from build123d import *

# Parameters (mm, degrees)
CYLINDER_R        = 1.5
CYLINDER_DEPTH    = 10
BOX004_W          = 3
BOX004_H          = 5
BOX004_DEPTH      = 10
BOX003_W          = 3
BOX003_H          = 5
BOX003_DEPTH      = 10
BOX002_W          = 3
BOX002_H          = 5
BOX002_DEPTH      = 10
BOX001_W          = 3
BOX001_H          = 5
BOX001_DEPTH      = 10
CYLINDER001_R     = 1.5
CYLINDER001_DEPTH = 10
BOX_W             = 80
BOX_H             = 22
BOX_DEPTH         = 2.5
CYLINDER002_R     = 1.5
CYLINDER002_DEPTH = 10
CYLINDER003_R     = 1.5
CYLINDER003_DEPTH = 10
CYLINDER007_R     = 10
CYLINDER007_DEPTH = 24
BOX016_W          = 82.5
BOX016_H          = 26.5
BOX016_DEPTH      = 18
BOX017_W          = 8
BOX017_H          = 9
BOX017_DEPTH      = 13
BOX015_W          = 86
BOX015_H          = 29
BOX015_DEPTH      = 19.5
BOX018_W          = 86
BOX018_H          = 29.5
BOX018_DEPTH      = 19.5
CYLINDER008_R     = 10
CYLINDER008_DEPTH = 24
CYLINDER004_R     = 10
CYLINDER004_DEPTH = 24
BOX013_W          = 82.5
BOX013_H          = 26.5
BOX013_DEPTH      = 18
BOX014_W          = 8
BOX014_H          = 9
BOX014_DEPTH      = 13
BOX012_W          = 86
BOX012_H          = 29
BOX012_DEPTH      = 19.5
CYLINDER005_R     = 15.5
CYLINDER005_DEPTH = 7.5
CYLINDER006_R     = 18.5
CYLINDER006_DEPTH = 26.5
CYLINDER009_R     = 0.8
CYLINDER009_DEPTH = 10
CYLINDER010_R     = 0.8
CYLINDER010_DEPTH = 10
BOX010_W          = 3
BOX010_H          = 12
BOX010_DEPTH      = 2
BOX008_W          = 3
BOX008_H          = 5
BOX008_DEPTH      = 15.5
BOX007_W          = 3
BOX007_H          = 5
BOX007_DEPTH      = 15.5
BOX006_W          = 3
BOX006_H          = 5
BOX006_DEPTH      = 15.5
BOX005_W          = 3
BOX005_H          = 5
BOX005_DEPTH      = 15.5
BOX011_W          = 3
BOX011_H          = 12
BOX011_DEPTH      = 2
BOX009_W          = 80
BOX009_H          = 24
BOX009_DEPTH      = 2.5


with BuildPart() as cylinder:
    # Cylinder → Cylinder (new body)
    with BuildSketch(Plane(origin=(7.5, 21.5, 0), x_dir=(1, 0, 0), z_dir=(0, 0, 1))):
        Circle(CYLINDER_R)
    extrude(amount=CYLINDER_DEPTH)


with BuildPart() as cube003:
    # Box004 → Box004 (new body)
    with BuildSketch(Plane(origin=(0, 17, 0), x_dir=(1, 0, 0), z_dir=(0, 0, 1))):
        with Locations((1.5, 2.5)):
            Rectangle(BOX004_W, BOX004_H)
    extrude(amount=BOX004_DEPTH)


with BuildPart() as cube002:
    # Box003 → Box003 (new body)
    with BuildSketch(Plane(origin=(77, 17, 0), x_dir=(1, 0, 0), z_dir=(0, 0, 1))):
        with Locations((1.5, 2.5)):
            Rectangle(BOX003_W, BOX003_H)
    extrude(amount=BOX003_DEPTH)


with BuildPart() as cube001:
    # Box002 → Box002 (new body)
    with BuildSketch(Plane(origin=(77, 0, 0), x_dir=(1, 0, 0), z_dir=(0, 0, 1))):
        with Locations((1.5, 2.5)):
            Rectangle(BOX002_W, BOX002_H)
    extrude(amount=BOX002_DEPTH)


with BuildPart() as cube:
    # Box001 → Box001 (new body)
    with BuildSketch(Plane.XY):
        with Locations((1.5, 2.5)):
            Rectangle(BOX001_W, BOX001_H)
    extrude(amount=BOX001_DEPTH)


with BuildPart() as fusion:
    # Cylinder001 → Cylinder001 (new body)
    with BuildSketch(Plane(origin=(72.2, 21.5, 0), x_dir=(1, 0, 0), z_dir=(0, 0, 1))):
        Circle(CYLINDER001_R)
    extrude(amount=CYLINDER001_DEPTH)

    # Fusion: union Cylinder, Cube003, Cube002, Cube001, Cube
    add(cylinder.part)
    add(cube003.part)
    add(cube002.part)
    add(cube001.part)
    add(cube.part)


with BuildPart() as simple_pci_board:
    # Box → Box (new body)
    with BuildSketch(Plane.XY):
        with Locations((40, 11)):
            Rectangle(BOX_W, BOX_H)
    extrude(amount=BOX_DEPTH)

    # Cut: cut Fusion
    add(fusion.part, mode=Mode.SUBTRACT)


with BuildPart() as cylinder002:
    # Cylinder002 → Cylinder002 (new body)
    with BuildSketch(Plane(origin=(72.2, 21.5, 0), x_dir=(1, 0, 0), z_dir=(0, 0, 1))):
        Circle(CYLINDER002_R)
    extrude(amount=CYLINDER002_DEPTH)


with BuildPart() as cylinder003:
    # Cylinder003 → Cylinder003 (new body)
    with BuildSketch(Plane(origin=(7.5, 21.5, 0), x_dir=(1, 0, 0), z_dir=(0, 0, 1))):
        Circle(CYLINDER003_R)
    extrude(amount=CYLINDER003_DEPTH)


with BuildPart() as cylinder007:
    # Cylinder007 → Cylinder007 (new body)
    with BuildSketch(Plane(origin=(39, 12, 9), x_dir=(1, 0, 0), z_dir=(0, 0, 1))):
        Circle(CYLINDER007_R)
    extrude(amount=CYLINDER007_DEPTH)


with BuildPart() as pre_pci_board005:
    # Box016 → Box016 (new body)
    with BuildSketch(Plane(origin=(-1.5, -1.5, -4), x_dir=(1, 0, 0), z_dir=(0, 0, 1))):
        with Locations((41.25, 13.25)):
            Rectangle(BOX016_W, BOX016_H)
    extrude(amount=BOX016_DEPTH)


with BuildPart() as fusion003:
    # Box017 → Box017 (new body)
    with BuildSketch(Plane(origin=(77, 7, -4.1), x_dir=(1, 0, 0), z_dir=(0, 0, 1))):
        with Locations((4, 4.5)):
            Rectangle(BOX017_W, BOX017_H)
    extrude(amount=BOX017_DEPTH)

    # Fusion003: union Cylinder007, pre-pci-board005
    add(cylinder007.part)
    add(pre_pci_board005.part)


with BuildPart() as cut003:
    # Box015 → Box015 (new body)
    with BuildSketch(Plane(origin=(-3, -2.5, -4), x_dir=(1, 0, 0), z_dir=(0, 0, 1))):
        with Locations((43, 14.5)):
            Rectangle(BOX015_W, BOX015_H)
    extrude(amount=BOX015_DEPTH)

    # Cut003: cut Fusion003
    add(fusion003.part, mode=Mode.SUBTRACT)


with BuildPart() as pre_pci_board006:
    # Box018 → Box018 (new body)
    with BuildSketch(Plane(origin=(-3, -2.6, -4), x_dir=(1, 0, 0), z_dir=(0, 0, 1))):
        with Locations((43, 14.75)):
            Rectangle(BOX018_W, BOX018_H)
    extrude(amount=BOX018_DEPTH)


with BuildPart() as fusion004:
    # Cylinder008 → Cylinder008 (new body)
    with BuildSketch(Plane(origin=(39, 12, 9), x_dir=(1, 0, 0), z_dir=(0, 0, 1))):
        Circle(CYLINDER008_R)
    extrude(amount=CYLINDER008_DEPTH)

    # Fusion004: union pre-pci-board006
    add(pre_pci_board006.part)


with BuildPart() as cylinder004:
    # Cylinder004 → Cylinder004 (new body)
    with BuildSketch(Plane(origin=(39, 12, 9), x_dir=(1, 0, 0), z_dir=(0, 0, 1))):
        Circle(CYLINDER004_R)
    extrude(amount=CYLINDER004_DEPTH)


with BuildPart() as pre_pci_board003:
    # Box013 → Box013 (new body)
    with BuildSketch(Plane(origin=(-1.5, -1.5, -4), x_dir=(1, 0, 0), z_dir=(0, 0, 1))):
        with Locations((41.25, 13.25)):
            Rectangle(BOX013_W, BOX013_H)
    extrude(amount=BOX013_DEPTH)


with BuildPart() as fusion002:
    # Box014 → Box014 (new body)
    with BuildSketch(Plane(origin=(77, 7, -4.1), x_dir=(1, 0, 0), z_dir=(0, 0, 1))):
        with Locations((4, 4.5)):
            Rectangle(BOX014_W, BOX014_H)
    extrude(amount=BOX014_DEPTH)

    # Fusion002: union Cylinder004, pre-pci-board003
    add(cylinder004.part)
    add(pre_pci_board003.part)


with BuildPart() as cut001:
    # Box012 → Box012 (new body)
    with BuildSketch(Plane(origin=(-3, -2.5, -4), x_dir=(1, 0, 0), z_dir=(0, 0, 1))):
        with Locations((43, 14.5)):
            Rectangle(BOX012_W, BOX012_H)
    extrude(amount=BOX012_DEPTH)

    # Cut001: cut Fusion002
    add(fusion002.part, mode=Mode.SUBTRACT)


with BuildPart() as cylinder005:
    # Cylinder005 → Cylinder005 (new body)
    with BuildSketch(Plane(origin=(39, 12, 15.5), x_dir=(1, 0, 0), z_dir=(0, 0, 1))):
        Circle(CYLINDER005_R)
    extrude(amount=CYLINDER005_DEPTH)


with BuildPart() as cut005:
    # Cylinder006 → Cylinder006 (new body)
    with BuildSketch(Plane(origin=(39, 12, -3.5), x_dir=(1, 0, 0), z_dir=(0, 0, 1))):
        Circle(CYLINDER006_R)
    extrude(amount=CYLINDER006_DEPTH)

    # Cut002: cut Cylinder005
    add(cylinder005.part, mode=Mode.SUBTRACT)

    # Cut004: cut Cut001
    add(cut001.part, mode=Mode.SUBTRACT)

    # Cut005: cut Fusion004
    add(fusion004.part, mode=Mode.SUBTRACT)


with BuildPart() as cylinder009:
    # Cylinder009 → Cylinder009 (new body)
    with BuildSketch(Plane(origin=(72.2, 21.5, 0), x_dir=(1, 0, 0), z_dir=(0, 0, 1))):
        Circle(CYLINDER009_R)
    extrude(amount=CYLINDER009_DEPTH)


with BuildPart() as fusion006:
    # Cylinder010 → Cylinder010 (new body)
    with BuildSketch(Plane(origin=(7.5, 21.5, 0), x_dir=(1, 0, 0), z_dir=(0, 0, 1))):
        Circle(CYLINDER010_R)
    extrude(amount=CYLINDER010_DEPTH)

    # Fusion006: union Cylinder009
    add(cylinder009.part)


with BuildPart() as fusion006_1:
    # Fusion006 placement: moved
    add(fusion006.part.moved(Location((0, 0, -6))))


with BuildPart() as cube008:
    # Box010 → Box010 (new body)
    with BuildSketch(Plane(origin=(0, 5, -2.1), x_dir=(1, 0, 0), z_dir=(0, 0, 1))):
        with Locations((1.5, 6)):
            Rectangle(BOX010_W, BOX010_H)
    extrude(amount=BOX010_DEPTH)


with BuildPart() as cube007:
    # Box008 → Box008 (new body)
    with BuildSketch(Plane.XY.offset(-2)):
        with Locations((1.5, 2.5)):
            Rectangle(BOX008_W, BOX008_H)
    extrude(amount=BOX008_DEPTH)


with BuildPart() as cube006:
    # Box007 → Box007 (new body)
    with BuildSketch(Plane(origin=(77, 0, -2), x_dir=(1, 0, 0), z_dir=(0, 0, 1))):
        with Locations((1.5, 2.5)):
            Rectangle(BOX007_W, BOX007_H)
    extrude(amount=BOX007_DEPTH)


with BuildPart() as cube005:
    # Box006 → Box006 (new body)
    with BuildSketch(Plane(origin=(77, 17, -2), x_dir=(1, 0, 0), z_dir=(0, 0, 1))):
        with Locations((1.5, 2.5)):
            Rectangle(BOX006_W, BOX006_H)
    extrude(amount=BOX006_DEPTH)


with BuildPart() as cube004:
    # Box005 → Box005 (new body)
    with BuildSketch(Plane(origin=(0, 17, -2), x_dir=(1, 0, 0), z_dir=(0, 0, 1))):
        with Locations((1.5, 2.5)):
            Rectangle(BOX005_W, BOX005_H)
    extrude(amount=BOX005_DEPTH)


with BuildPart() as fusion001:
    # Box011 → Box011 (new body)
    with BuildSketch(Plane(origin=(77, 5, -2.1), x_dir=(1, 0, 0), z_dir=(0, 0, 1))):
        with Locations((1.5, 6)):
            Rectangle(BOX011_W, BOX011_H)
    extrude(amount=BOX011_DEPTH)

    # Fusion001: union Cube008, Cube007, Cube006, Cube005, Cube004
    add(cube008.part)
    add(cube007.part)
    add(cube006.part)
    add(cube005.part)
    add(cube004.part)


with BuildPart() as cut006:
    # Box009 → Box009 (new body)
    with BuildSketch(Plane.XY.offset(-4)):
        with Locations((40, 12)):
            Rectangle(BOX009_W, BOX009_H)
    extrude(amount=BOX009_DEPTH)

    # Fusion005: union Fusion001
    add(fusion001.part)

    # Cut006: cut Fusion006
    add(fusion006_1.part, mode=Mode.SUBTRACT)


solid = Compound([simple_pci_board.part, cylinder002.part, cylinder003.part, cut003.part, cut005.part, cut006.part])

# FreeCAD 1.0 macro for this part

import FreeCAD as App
import Part
import Sketcher


def add_polygon(sketch, points):
    """Adds a closed chain of lines whose ends are joined by coincident constraints."""
    first, n = sketch.GeometryCount, len(points)
    for a, b in zip(points, points[1:] + points[:1]):
        sketch.addGeometry(Part.LineSegment(App.Vector(*a, 0), App.Vector(*b, 0)), False)
    for i in range(n):
        sketch.addConstraint(Sketcher.Constraint("Coincident", first + i, 2, first + (i + 1) % n, 1))

doc = App.newDocument("Part")
body = doc.addObject("PartDesign::Body", "Body")

# Sketch on XY plane
sketch1 = body.newObject("Sketcher::SketchObject", "Sketch")
sketch1.AttachmentSupport = (doc.getObject("XY_Plane"), [""])
sketch1.MapMode = "FlatFace"
sketch1.addGeometry(Part.Circle(App.Vector(7.5, 21.5, 0), App.Vector(0, 0, 1), 1.5), False)
sketch1.addConstraint([
    Sketcher.Constraint("Diameter", 0, 3.0),
    Sketcher.Constraint("DistanceX", -1, 1, 0, 3, 7.5),
    Sketcher.Constraint("DistanceY", -1, 1, 0, 3, 21.5),
])
pad1 = body.newObject("PartDesign::Pad", "Pad")
pad1.Profile = sketch1
pad1.Length = 10
body2 = doc.addObject("PartDesign::Body", "Body001")

# Sketch on XY plane
sketch2 = body2.newObject("Sketcher::SketchObject", "Sketch001")
sketch2.AttachmentSupport = (doc.getObject("XY_Plane001"), [""])
sketch2.MapMode = "FlatFace"
add_polygon(sketch2, [(0, 22), (0, 17), (3, 17), (3, 22)])  # lines 0-3
sketch2.addConstraint([
    Sketcher.Constraint("Vertical", 0),
    Sketcher.Constraint("Horizontal", 1),
    Sketcher.Constraint("Vertical", 2),
    Sketcher.Constraint("Horizontal", 3),
    Sketcher.Constraint("PointOnObject", 0, 2, -2),
    Sketcher.Constraint("DistanceX", 1, 1, 1, 2, 3.0),
    Sketcher.Constraint("DistanceY", 0, 2, 0, 1, 5.0),
    Sketcher.Constraint("DistanceY", -1, 1, 0, 2, 17.0),
])
pad2 = body2.newObject("PartDesign::Pad", "Pad001")
pad2.Profile = sketch2
pad2.Length = 10
body3 = doc.addObject("PartDesign::Body", "Body002")

# Sketch on XY plane
sketch3 = body3.newObject("Sketcher::SketchObject", "Sketch002")
sketch3.AttachmentSupport = (doc.getObject("XY_Plane002"), [""])
sketch3.MapMode = "FlatFace"
add_polygon(sketch3, [(77, 22), (77, 17), (80, 17), (80, 22)])  # lines 0-3
sketch3.addConstraint([
    Sketcher.Constraint("Vertical", 0),
    Sketcher.Constraint("Horizontal", 1),
    Sketcher.Constraint("Vertical", 2),
    Sketcher.Constraint("Horizontal", 3),
    Sketcher.Constraint("DistanceX", 1, 1, 1, 2, 3.0),
    Sketcher.Constraint("DistanceY", 0, 2, 0, 1, 5.0),
    Sketcher.Constraint("DistanceX", -1, 1, 0, 2, 77.0),
    Sketcher.Constraint("DistanceY", -1, 1, 0, 2, 17.0),
])
pad3 = body3.newObject("PartDesign::Pad", "Pad002")
pad3.Profile = sketch3
pad3.Length = 10
body4 = doc.addObject("PartDesign::Body", "Body003")

# Sketch on XY plane
sketch4 = body4.newObject("Sketcher::SketchObject", "Sketch003")
sketch4.AttachmentSupport = (doc.getObject("XY_Plane003"), [""])
sketch4.MapMode = "FlatFace"
add_polygon(sketch4, [(77, 5), (77, 0), (80, 0), (80, 5)])  # lines 0-3
sketch4.addConstraint([
    Sketcher.Constraint("Vertical", 0),
    Sketcher.Constraint("Horizontal", 1),
    Sketcher.Constraint("Vertical", 2),
    Sketcher.Constraint("Horizontal", 3),
    Sketcher.Constraint("PointOnObject", 0, 2, -1),
    Sketcher.Constraint("DistanceX", 1, 1, 1, 2, 3.0),
    Sketcher.Constraint("DistanceY", 0, 2, 0, 1, 5.0),
    Sketcher.Constraint("DistanceX", -1, 1, 0, 2, 77.0),
])
pad4 = body4.newObject("PartDesign::Pad", "Pad003")
pad4.Profile = sketch4
pad4.Length = 10
body5 = doc.addObject("PartDesign::Body", "Body004")

# Sketch on XY plane
sketch5 = body5.newObject("Sketcher::SketchObject", "Sketch004")
sketch5.AttachmentSupport = (doc.getObject("XY_Plane004"), [""])
sketch5.MapMode = "FlatFace"
add_polygon(sketch5, [(0, 5), (0, 0), (3, 0), (3, 5)])  # lines 0-3
sketch5.addConstraint([
    Sketcher.Constraint("Vertical", 0),
    Sketcher.Constraint("Horizontal", 1),
    Sketcher.Constraint("Vertical", 2),
    Sketcher.Constraint("Horizontal", 3),
    Sketcher.Constraint("Coincident", 0, 2, -1, 1),
    Sketcher.Constraint("DistanceX", 1, 1, 1, 2, 3.0),
    Sketcher.Constraint("DistanceY", 0, 2, 0, 1, 5.0),
])
pad5 = body5.newObject("PartDesign::Pad", "Pad004")
pad5.Profile = sketch5
pad5.Length = 10
body6 = doc.addObject("PartDesign::Body", "Body005")
body6.AllowCompound = True

# Sketch on XY plane
sketch6 = body6.newObject("Sketcher::SketchObject", "Sketch005")
sketch6.AttachmentSupport = (doc.getObject("XY_Plane005"), [""])
sketch6.MapMode = "FlatFace"
sketch6.addGeometry(Part.Circle(App.Vector(72.2, 21.5, 0), App.Vector(0, 0, 1), 1.5), False)
sketch6.addConstraint([
    Sketcher.Constraint("Diameter", 0, 3.0),
    Sketcher.Constraint("DistanceX", -1, 1, 0, 3, 72.2),
    Sketcher.Constraint("DistanceY", -1, 1, 0, 3, 21.5),
])
pad6 = body6.newObject("PartDesign::Pad", "Pad005")
pad6.Profile = sketch6
pad6.Length = 10
doc.recompute()

boolean = body6.newObject("PartDesign::Boolean", "Boolean")
boolean.Type = "Fuse"
boolean.addObjects([body])
doc.recompute()

boolean2 = body6.newObject("PartDesign::Boolean", "Boolean001")
boolean2.Type = "Fuse"
boolean2.addObjects([body2])
doc.recompute()

boolean3 = body6.newObject("PartDesign::Boolean", "Boolean002")
boolean3.Type = "Fuse"
boolean3.addObjects([body3])
doc.recompute()

boolean4 = body6.newObject("PartDesign::Boolean", "Boolean003")
boolean4.Type = "Fuse"
boolean4.addObjects([body4])
doc.recompute()

boolean5 = body6.newObject("PartDesign::Boolean", "Boolean004")
boolean5.Type = "Fuse"
boolean5.addObjects([body5])
body7 = doc.addObject("PartDesign::Body", "Body006")

# Sketch on XY plane
sketch7 = body7.newObject("Sketcher::SketchObject", "Sketch006")
sketch7.AttachmentSupport = (doc.getObject("XY_Plane006"), [""])
sketch7.MapMode = "FlatFace"
add_polygon(sketch7, [(0, 22), (0, 0), (80, 0), (80, 22)])  # lines 0-3
sketch7.addConstraint([
    Sketcher.Constraint("Vertical", 0),
    Sketcher.Constraint("Horizontal", 1),
    Sketcher.Constraint("Vertical", 2),
    Sketcher.Constraint("Horizontal", 3),
    Sketcher.Constraint("Coincident", 0, 2, -1, 1),
    Sketcher.Constraint("DistanceX", 1, 1, 1, 2, 80.0),
    Sketcher.Constraint("DistanceY", 0, 2, 0, 1, 22.0),
])
pad7 = body7.newObject("PartDesign::Pad", "Pad006")
pad7.Profile = sketch7
pad7.Length = 2.5
doc.recompute()

boolean6 = body7.newObject("PartDesign::Boolean", "Boolean005")
boolean6.Type = "Cut"
boolean6.addObjects([body6])
body8 = doc.addObject("PartDesign::Body", "Body007")

# Sketch on XY plane
sketch8 = body8.newObject("Sketcher::SketchObject", "Sketch007")
sketch8.AttachmentSupport = (doc.getObject("XY_Plane007"), [""])
sketch8.MapMode = "FlatFace"
sketch8.addGeometry(Part.Circle(App.Vector(72.2, 21.5, 0), App.Vector(0, 0, 1), 1.5), False)
sketch8.addConstraint([
    Sketcher.Constraint("Diameter", 0, 3.0),
    Sketcher.Constraint("DistanceX", -1, 1, 0, 3, 72.2),
    Sketcher.Constraint("DistanceY", -1, 1, 0, 3, 21.5),
])
pad8 = body8.newObject("PartDesign::Pad", "Pad007")
pad8.Profile = sketch8
pad8.Length = 10
body9 = doc.addObject("PartDesign::Body", "Body008")

# Sketch on XY plane
sketch9 = body9.newObject("Sketcher::SketchObject", "Sketch008")
sketch9.AttachmentSupport = (doc.getObject("XY_Plane008"), [""])
sketch9.MapMode = "FlatFace"
sketch9.addGeometry(Part.Circle(App.Vector(7.5, 21.5, 0), App.Vector(0, 0, 1), 1.5), False)
sketch9.addConstraint([
    Sketcher.Constraint("Diameter", 0, 3.0),
    Sketcher.Constraint("DistanceX", -1, 1, 0, 3, 7.5),
    Sketcher.Constraint("DistanceY", -1, 1, 0, 3, 21.5),
])
pad9 = body9.newObject("PartDesign::Pad", "Pad008")
pad9.Profile = sketch9
pad9.Length = 10
body10 = doc.addObject("PartDesign::Body", "Body009")

# Sketch on XY plane
sketch10 = body10.newObject("Sketcher::SketchObject", "Sketch009")
sketch10.AttachmentSupport = (doc.getObject("XY_Plane009"), [""])
sketch10.MapMode = "FlatFace"
sketch10.AttachmentOffset = App.Placement(App.Vector(0, 0, 9), App.Rotation())
sketch10.addGeometry(Part.Circle(App.Vector(39, 12, 0), App.Vector(0, 0, 1), 10), False)
sketch10.addConstraint([
    Sketcher.Constraint("Diameter", 0, 20.0),
    Sketcher.Constraint("DistanceX", -1, 1, 0, 3, 39.0),
    Sketcher.Constraint("DistanceY", -1, 1, 0, 3, 12.0),
])
pad10 = body10.newObject("PartDesign::Pad", "Pad009")
pad10.Profile = sketch10
pad10.Length = 24
body11 = doc.addObject("PartDesign::Body", "Body010")

# Sketch on XY plane
sketch11 = body11.newObject("Sketcher::SketchObject", "Sketch010")
sketch11.AttachmentSupport = (doc.getObject("XY_Plane010"), [""])
sketch11.MapMode = "FlatFace"
sketch11.AttachmentOffset = App.Placement(App.Vector(0, 0, -4), App.Rotation())
add_polygon(sketch11, [(-2, 25), (-2, -2), (81, -2), (81, 25)])  # lines 0-3
sketch11.addConstraint([
    Sketcher.Constraint("Vertical", 0),
    Sketcher.Constraint("Horizontal", 1),
    Sketcher.Constraint("Vertical", 2),
    Sketcher.Constraint("Horizontal", 3),
    Sketcher.Constraint("DistanceX", 1, 1, 1, 2, 82.5),
    Sketcher.Constraint("DistanceY", 0, 2, 0, 1, 26.5),
    Sketcher.Constraint("DistanceX", -1, 1, 1, 2, 81.0),
    Sketcher.Constraint("DistanceY", -1, 1, 2, 2, 25.0),
])
pad11 = body11.newObject("PartDesign::Pad", "Pad010")
pad11.Profile = sketch11
pad11.Length = 18
body12 = doc.addObject("PartDesign::Body", "Body011")
body12.AllowCompound = True

# Sketch on XY plane
sketch12 = body12.newObject("Sketcher::SketchObject", "Sketch011")
sketch12.AttachmentSupport = (doc.getObject("XY_Plane011"), [""])
sketch12.MapMode = "FlatFace"
sketch12.AttachmentOffset = App.Placement(App.Vector(0, 0, -4.1), App.Rotation())
add_polygon(sketch12, [(77, 16), (77, 7), (85, 7), (85, 16)])  # lines 0-3
sketch12.addConstraint([
    Sketcher.Constraint("Vertical", 0),
    Sketcher.Constraint("Horizontal", 1),
    Sketcher.Constraint("Vertical", 2),
    Sketcher.Constraint("Horizontal", 3),
    Sketcher.Constraint("DistanceX", 1, 1, 1, 2, 8.0),
    Sketcher.Constraint("DistanceY", 0, 2, 0, 1, 9.0),
    Sketcher.Constraint("DistanceX", -1, 1, 0, 2, 77.0),
    Sketcher.Constraint("DistanceY", -1, 1, 0, 2, 7.0),
])
pad12 = body12.newObject("PartDesign::Pad", "Pad011")
pad12.Profile = sketch12
pad12.Length = 13
doc.recompute()

boolean7 = body12.newObject("PartDesign::Boolean", "Boolean006")
boolean7.Type = "Fuse"
boolean7.addObjects([body10])
doc.recompute()

boolean8 = body12.newObject("PartDesign::Boolean", "Boolean007")
boolean8.Type = "Fuse"
boolean8.addObjects([body11])
body13 = doc.addObject("PartDesign::Body", "Body012")

# Sketch on XY plane
sketch13 = body13.newObject("Sketcher::SketchObject", "Sketch012")
sketch13.AttachmentSupport = (doc.getObject("XY_Plane012"), [""])
sketch13.MapMode = "FlatFace"
sketch13.AttachmentOffset = App.Placement(App.Vector(0, 0, -4), App.Rotation())
add_polygon(sketch13, [(-3, 26), (-3, -2), (83, -2), (83, 26)])  # lines 0-3
sketch13.addConstraint([
    Sketcher.Constraint("Vertical", 0),
    Sketcher.Constraint("Horizontal", 1),
    Sketcher.Constraint("Vertical", 2),
    Sketcher.Constraint("Horizontal", 3),
    Sketcher.Constraint("DistanceX", 1, 1, 1, 2, 86.0),
    Sketcher.Constraint("DistanceY", 0, 2, 0, 1, 29.0),
    Sketcher.Constraint("DistanceX", 0, 2, -1, 1, 3.0),
    Sketcher.Constraint("DistanceY", 0, 2, -1, 1, 2.5),
])
pad13 = body13.newObject("PartDesign::Pad", "Pad012")
pad13.Profile = sketch13
pad13.Length = 19.5
doc.recompute()

boolean9 = body13.newObject("PartDesign::Boolean", "Boolean008")
boolean9.Type = "Cut"
boolean9.addObjects([body12])
body14 = doc.addObject("PartDesign::Body", "Body013")

# Sketch on XY plane
sketch14 = body14.newObject("Sketcher::SketchObject", "Sketch013")
sketch14.AttachmentSupport = (doc.getObject("XY_Plane013"), [""])
sketch14.MapMode = "FlatFace"
sketch14.AttachmentOffset = App.Placement(App.Vector(0, 0, -4), App.Rotation())
add_polygon(sketch14, [(-3, 27), (-3, -3), (83, -3), (83, 27)])  # lines 0-3
sketch14.addConstraint([
    Sketcher.Constraint("Vertical", 0),
    Sketcher.Constraint("Horizontal", 1),
    Sketcher.Constraint("Vertical", 2),
    Sketcher.Constraint("Horizontal", 3),
    Sketcher.Constraint("DistanceX", 1, 1, 1, 2, 86.0),
    Sketcher.Constraint("DistanceY", 0, 2, 0, 1, 29.5),
    Sketcher.Constraint("DistanceX", 0, 2, -1, 1, 3.0),
    Sketcher.Constraint("DistanceY", 0, 2, -1, 1, 2.6),
])
pad14 = body14.newObject("PartDesign::Pad", "Pad013")
pad14.Profile = sketch14
pad14.Length = 19.5
body15 = doc.addObject("PartDesign::Body", "Body014")

# Sketch on XY plane
sketch15 = body15.newObject("Sketcher::SketchObject", "Sketch014")
sketch15.AttachmentSupport = (doc.getObject("XY_Plane014"), [""])
sketch15.MapMode = "FlatFace"
sketch15.AttachmentOffset = App.Placement(App.Vector(0, 0, 9), App.Rotation())
sketch15.addGeometry(Part.Circle(App.Vector(39, 12, 0), App.Vector(0, 0, 1), 10), False)
sketch15.addConstraint([
    Sketcher.Constraint("Diameter", 0, 20.0),
    Sketcher.Constraint("DistanceX", -1, 1, 0, 3, 39.0),
    Sketcher.Constraint("DistanceY", -1, 1, 0, 3, 12.0),
])
pad15 = body15.newObject("PartDesign::Pad", "Pad014")
pad15.Profile = sketch15
pad15.Length = 24
doc.recompute()

boolean10 = body15.newObject("PartDesign::Boolean", "Boolean009")
boolean10.Type = "Fuse"
boolean10.addObjects([body14])
body16 = doc.addObject("PartDesign::Body", "Body015")

# Sketch on XY plane
sketch16 = body16.newObject("Sketcher::SketchObject", "Sketch015")
sketch16.AttachmentSupport = (doc.getObject("XY_Plane015"), [""])
sketch16.MapMode = "FlatFace"
sketch16.AttachmentOffset = App.Placement(App.Vector(0, 0, 9), App.Rotation())
sketch16.addGeometry(Part.Circle(App.Vector(39, 12, 0), App.Vector(0, 0, 1), 10), False)
sketch16.addConstraint([
    Sketcher.Constraint("Diameter", 0, 20.0),
    Sketcher.Constraint("DistanceX", -1, 1, 0, 3, 39.0),
    Sketcher.Constraint("DistanceY", -1, 1, 0, 3, 12.0),
])
pad16 = body16.newObject("PartDesign::Pad", "Pad015")
pad16.Profile = sketch16
pad16.Length = 24
body17 = doc.addObject("PartDesign::Body", "Body016")

# Sketch on XY plane
sketch17 = body17.newObject("Sketcher::SketchObject", "Sketch016")
sketch17.AttachmentSupport = (doc.getObject("XY_Plane016"), [""])
sketch17.MapMode = "FlatFace"
sketch17.AttachmentOffset = App.Placement(App.Vector(0, 0, -4), App.Rotation())
add_polygon(sketch17, [(-2, 25), (-2, -2), (81, -2), (81, 25)])  # lines 0-3
sketch17.addConstraint([
    Sketcher.Constraint("Vertical", 0),
    Sketcher.Constraint("Horizontal", 1),
    Sketcher.Constraint("Vertical", 2),
    Sketcher.Constraint("Horizontal", 3),
    Sketcher.Constraint("DistanceX", 1, 1, 1, 2, 82.5),
    Sketcher.Constraint("DistanceY", 0, 2, 0, 1, 26.5),
    Sketcher.Constraint("DistanceX", -1, 1, 1, 2, 81.0),
    Sketcher.Constraint("DistanceY", -1, 1, 2, 2, 25.0),
])
pad17 = body17.newObject("PartDesign::Pad", "Pad016")
pad17.Profile = sketch17
pad17.Length = 18
body18 = doc.addObject("PartDesign::Body", "Body017")
body18.AllowCompound = True

# Sketch on XY plane
sketch18 = body18.newObject("Sketcher::SketchObject", "Sketch017")
sketch18.AttachmentSupport = (doc.getObject("XY_Plane017"), [""])
sketch18.MapMode = "FlatFace"
sketch18.AttachmentOffset = App.Placement(App.Vector(0, 0, -4.1), App.Rotation())
add_polygon(sketch18, [(77, 16), (77, 7), (85, 7), (85, 16)])  # lines 0-3
sketch18.addConstraint([
    Sketcher.Constraint("Vertical", 0),
    Sketcher.Constraint("Horizontal", 1),
    Sketcher.Constraint("Vertical", 2),
    Sketcher.Constraint("Horizontal", 3),
    Sketcher.Constraint("DistanceX", 1, 1, 1, 2, 8.0),
    Sketcher.Constraint("DistanceY", 0, 2, 0, 1, 9.0),
    Sketcher.Constraint("DistanceX", -1, 1, 0, 2, 77.0),
    Sketcher.Constraint("DistanceY", -1, 1, 0, 2, 7.0),
])
pad18 = body18.newObject("PartDesign::Pad", "Pad017")
pad18.Profile = sketch18
pad18.Length = 13
doc.recompute()

boolean11 = body18.newObject("PartDesign::Boolean", "Boolean010")
boolean11.Type = "Fuse"
boolean11.addObjects([body16])
doc.recompute()

boolean12 = body18.newObject("PartDesign::Boolean", "Boolean011")
boolean12.Type = "Fuse"
boolean12.addObjects([body17])
body19 = doc.addObject("PartDesign::Body", "Body018")

# Sketch on XY plane
sketch19 = body19.newObject("Sketcher::SketchObject", "Sketch018")
sketch19.AttachmentSupport = (doc.getObject("XY_Plane018"), [""])
sketch19.MapMode = "FlatFace"
sketch19.AttachmentOffset = App.Placement(App.Vector(0, 0, -4), App.Rotation())
add_polygon(sketch19, [(-3, 26), (-3, -2), (83, -2), (83, 26)])  # lines 0-3
sketch19.addConstraint([
    Sketcher.Constraint("Vertical", 0),
    Sketcher.Constraint("Horizontal", 1),
    Sketcher.Constraint("Vertical", 2),
    Sketcher.Constraint("Horizontal", 3),
    Sketcher.Constraint("DistanceX", 1, 1, 1, 2, 86.0),
    Sketcher.Constraint("DistanceY", 0, 2, 0, 1, 29.0),
    Sketcher.Constraint("DistanceX", 0, 2, -1, 1, 3.0),
    Sketcher.Constraint("DistanceY", 0, 2, -1, 1, 2.5),
])
pad19 = body19.newObject("PartDesign::Pad", "Pad018")
pad19.Profile = sketch19
pad19.Length = 19.5
doc.recompute()

boolean13 = body19.newObject("PartDesign::Boolean", "Boolean012")
boolean13.Type = "Cut"
boolean13.addObjects([body18])
body20 = doc.addObject("PartDesign::Body", "Body019")

# Sketch on XY plane
sketch20 = body20.newObject("Sketcher::SketchObject", "Sketch019")
sketch20.AttachmentSupport = (doc.getObject("XY_Plane019"), [""])
sketch20.MapMode = "FlatFace"
sketch20.AttachmentOffset = App.Placement(App.Vector(0, 0, 15.5), App.Rotation())
sketch20.addGeometry(Part.Circle(App.Vector(39, 12, 0), App.Vector(0, 0, 1), 16), False)
sketch20.addConstraint([
    Sketcher.Constraint("Diameter", 0, 31.0),
    Sketcher.Constraint("DistanceX", -1, 1, 0, 3, 39.0),
    Sketcher.Constraint("DistanceY", -1, 1, 0, 3, 12.0),
])
pad20 = body20.newObject("PartDesign::Pad", "Pad019")
pad20.Profile = sketch20
pad20.Length = 7.5
body21 = doc.addObject("PartDesign::Body", "Body020")
body21.AllowCompound = True

# Sketch on XY plane
sketch21 = body21.newObject("Sketcher::SketchObject", "Sketch020")
sketch21.AttachmentSupport = (doc.getObject("XY_Plane020"), [""])
sketch21.MapMode = "FlatFace"
sketch21.AttachmentOffset = App.Placement(App.Vector(0, 0, -3.5), App.Rotation())
sketch21.addGeometry(Part.Circle(App.Vector(39, 12, 0), App.Vector(0, 0, 1), 18), False)
sketch21.addConstraint([
    Sketcher.Constraint("Diameter", 0, 37.0),
    Sketcher.Constraint("DistanceX", -1, 1, 0, 3, 39.0),
    Sketcher.Constraint("DistanceY", -1, 1, 0, 3, 12.0),
])
pad21 = body21.newObject("PartDesign::Pad", "Pad020")
pad21.Profile = sketch21
pad21.Length = 26.5
doc.recompute()

boolean14 = body21.newObject("PartDesign::Boolean", "Boolean013")
boolean14.Type = "Cut"
boolean14.addObjects([body20])
doc.recompute()

boolean15 = body21.newObject("PartDesign::Boolean", "Boolean014")
boolean15.Type = "Cut"
boolean15.addObjects([body19])
doc.recompute()

boolean16 = body21.newObject("PartDesign::Boolean", "Boolean015")
boolean16.Type = "Cut"
boolean16.addObjects([body15])
body22 = doc.addObject("PartDesign::Body", "Body021")

# Sketch on XY plane
sketch22 = body22.newObject("Sketcher::SketchObject", "Sketch021")
sketch22.AttachmentSupport = (doc.getObject("XY_Plane021"), [""])
sketch22.MapMode = "FlatFace"
sketch22.addGeometry(Part.Circle(App.Vector(72.2, 21.5, 0), App.Vector(0, 0, 1), 0.8), False)
sketch22.addConstraint([
    Sketcher.Constraint("Diameter", 0, 1.6),
    Sketcher.Constraint("DistanceX", -1, 1, 0, 3, 72.2),
    Sketcher.Constraint("DistanceY", -1, 1, 0, 3, 21.5),
])
pad22 = body22.newObject("PartDesign::Pad", "Pad021")
pad22.Profile = sketch22
pad22.Length = 10
body23 = doc.addObject("PartDesign::Body", "Body022")
body23.AllowCompound = True

# Sketch on XY plane
sketch23 = body23.newObject("Sketcher::SketchObject", "Sketch022")
sketch23.AttachmentSupport = (doc.getObject("XY_Plane022"), [""])
sketch23.MapMode = "FlatFace"
sketch23.addGeometry(Part.Circle(App.Vector(7.5, 21.5, 0), App.Vector(0, 0, 1), 0.8), False)
sketch23.addConstraint([
    Sketcher.Constraint("Diameter", 0, 1.6),
    Sketcher.Constraint("DistanceX", -1, 1, 0, 3, 7.5),
    Sketcher.Constraint("DistanceY", -1, 1, 0, 3, 21.5),
])
pad23 = body23.newObject("PartDesign::Pad", "Pad022")
pad23.Profile = sketch23
pad23.Length = 10
doc.recompute()

boolean17 = body23.newObject("PartDesign::Boolean", "Boolean016")
boolean17.Type = "Fuse"
boolean17.addObjects([body22])
body24 = doc.addObject("PartDesign::Body", "Body023")
body24.AllowCompound = True
doc.recompute()

body23.Placement = App.Placement(App.Vector(0, 0, -6), App.Rotation(App.Vector(0, 0, 1), 0))
boolean18 = body24.newObject("PartDesign::Boolean", "Boolean017")
boolean18.Type = "Fuse"
boolean18.addObjects([body23])
body25 = doc.addObject("PartDesign::Body", "Body024")

# Sketch on XY plane
sketch24 = body25.newObject("Sketcher::SketchObject", "Sketch023")
sketch24.AttachmentSupport = (doc.getObject("XY_Plane024"), [""])
sketch24.MapMode = "FlatFace"
sketch24.AttachmentOffset = App.Placement(App.Vector(0, 0, -2.1), App.Rotation())
add_polygon(sketch24, [(0, 17), (0, 5), (3, 5), (3, 17)])  # lines 0-3
sketch24.addConstraint([
    Sketcher.Constraint("Vertical", 0),
    Sketcher.Constraint("Horizontal", 1),
    Sketcher.Constraint("Vertical", 2),
    Sketcher.Constraint("Horizontal", 3),
    Sketcher.Constraint("PointOnObject", 0, 2, -2),
    Sketcher.Constraint("DistanceX", 1, 1, 1, 2, 3.0),
    Sketcher.Constraint("DistanceY", 0, 2, 0, 1, 12.0),
    Sketcher.Constraint("DistanceY", -1, 1, 0, 2, 5.0),
])
pad24 = body25.newObject("PartDesign::Pad", "Pad023")
pad24.Profile = sketch24
pad24.Length = 2
body26 = doc.addObject("PartDesign::Body", "Body025")

# Sketch on XY plane
sketch25 = body26.newObject("Sketcher::SketchObject", "Sketch024")
sketch25.AttachmentSupport = (doc.getObject("XY_Plane025"), [""])
sketch25.MapMode = "FlatFace"
sketch25.AttachmentOffset = App.Placement(App.Vector(0, 0, -2), App.Rotation())
add_polygon(sketch25, [(0, 5), (0, 0), (3, 0), (3, 5)])  # lines 0-3
sketch25.addConstraint([
    Sketcher.Constraint("Vertical", 0),
    Sketcher.Constraint("Horizontal", 1),
    Sketcher.Constraint("Vertical", 2),
    Sketcher.Constraint("Horizontal", 3),
    Sketcher.Constraint("Coincident", 0, 2, -1, 1),
    Sketcher.Constraint("DistanceX", 1, 1, 1, 2, 3.0),
    Sketcher.Constraint("DistanceY", 0, 2, 0, 1, 5.0),
])
pad25 = body26.newObject("PartDesign::Pad", "Pad024")
pad25.Profile = sketch25
pad25.Length = 15.5
body27 = doc.addObject("PartDesign::Body", "Body026")

# Sketch on XY plane
sketch26 = body27.newObject("Sketcher::SketchObject", "Sketch025")
sketch26.AttachmentSupport = (doc.getObject("XY_Plane026"), [""])
sketch26.MapMode = "FlatFace"
sketch26.AttachmentOffset = App.Placement(App.Vector(0, 0, -2), App.Rotation())
add_polygon(sketch26, [(77, 5), (77, 0), (80, 0), (80, 5)])  # lines 0-3
sketch26.addConstraint([
    Sketcher.Constraint("Vertical", 0),
    Sketcher.Constraint("Horizontal", 1),
    Sketcher.Constraint("Vertical", 2),
    Sketcher.Constraint("Horizontal", 3),
    Sketcher.Constraint("PointOnObject", 0, 2, -1),
    Sketcher.Constraint("DistanceX", 1, 1, 1, 2, 3.0),
    Sketcher.Constraint("DistanceY", 0, 2, 0, 1, 5.0),
    Sketcher.Constraint("DistanceX", -1, 1, 0, 2, 77.0),
])
pad26 = body27.newObject("PartDesign::Pad", "Pad025")
pad26.Profile = sketch26
pad26.Length = 15.5
body28 = doc.addObject("PartDesign::Body", "Body027")

# Sketch on XY plane
sketch27 = body28.newObject("Sketcher::SketchObject", "Sketch026")
sketch27.AttachmentSupport = (doc.getObject("XY_Plane027"), [""])
sketch27.MapMode = "FlatFace"
sketch27.AttachmentOffset = App.Placement(App.Vector(0, 0, -2), App.Rotation())
add_polygon(sketch27, [(77, 22), (77, 17), (80, 17), (80, 22)])  # lines 0-3
sketch27.addConstraint([
    Sketcher.Constraint("Vertical", 0),
    Sketcher.Constraint("Horizontal", 1),
    Sketcher.Constraint("Vertical", 2),
    Sketcher.Constraint("Horizontal", 3),
    Sketcher.Constraint("DistanceX", 1, 1, 1, 2, 3.0),
    Sketcher.Constraint("DistanceY", 0, 2, 0, 1, 5.0),
    Sketcher.Constraint("DistanceX", -1, 1, 0, 2, 77.0),
    Sketcher.Constraint("DistanceY", -1, 1, 0, 2, 17.0),
])
pad27 = body28.newObject("PartDesign::Pad", "Pad026")
pad27.Profile = sketch27
pad27.Length = 15.5
body29 = doc.addObject("PartDesign::Body", "Body028")

# Sketch on XY plane
sketch28 = body29.newObject("Sketcher::SketchObject", "Sketch027")
sketch28.AttachmentSupport = (doc.getObject("XY_Plane028"), [""])
sketch28.MapMode = "FlatFace"
sketch28.AttachmentOffset = App.Placement(App.Vector(0, 0, -2), App.Rotation())
add_polygon(sketch28, [(0, 22), (0, 17), (3, 17), (3, 22)])  # lines 0-3
sketch28.addConstraint([
    Sketcher.Constraint("Vertical", 0),
    Sketcher.Constraint("Horizontal", 1),
    Sketcher.Constraint("Vertical", 2),
    Sketcher.Constraint("Horizontal", 3),
    Sketcher.Constraint("PointOnObject", 0, 2, -2),
    Sketcher.Constraint("DistanceX", 1, 1, 1, 2, 3.0),
    Sketcher.Constraint("DistanceY", 0, 2, 0, 1, 5.0),
    Sketcher.Constraint("DistanceY", -1, 1, 0, 2, 17.0),
])
pad28 = body29.newObject("PartDesign::Pad", "Pad027")
pad28.Profile = sketch28
pad28.Length = 15.5
body30 = doc.addObject("PartDesign::Body", "Body029")
body30.AllowCompound = True

# Sketch on XY plane
sketch29 = body30.newObject("Sketcher::SketchObject", "Sketch028")
sketch29.AttachmentSupport = (doc.getObject("XY_Plane029"), [""])
sketch29.MapMode = "FlatFace"
sketch29.AttachmentOffset = App.Placement(App.Vector(0, 0, -2.1), App.Rotation())
add_polygon(sketch29, [(77, 17), (77, 5), (80, 5), (80, 17)])  # lines 0-3
sketch29.addConstraint([
    Sketcher.Constraint("Vertical", 0),
    Sketcher.Constraint("Horizontal", 1),
    Sketcher.Constraint("Vertical", 2),
    Sketcher.Constraint("Horizontal", 3),
    Sketcher.Constraint("DistanceX", 1, 1, 1, 2, 3.0),
    Sketcher.Constraint("DistanceY", 0, 2, 0, 1, 12.0),
    Sketcher.Constraint("DistanceX", -1, 1, 0, 2, 77.0),
    Sketcher.Constraint("DistanceY", -1, 1, 0, 2, 5.0),
])
pad29 = body30.newObject("PartDesign::Pad", "Pad028")
pad29.Profile = sketch29
pad29.Length = 2
doc.recompute()

boolean19 = body30.newObject("PartDesign::Boolean", "Boolean018")
boolean19.Type = "Fuse"
boolean19.addObjects([body25])
doc.recompute()

boolean20 = body30.newObject("PartDesign::Boolean", "Boolean019")
boolean20.Type = "Fuse"
boolean20.addObjects([body26])
doc.recompute()

boolean21 = body30.newObject("PartDesign::Boolean", "Boolean020")
boolean21.Type = "Fuse"
boolean21.addObjects([body27])
doc.recompute()

boolean22 = body30.newObject("PartDesign::Boolean", "Boolean021")
boolean22.Type = "Fuse"
boolean22.addObjects([body28])
doc.recompute()

boolean23 = body30.newObject("PartDesign::Boolean", "Boolean022")
boolean23.Type = "Fuse"
boolean23.addObjects([body29])
body31 = doc.addObject("PartDesign::Body", "Body030")

# Sketch on XY plane
sketch30 = body31.newObject("Sketcher::SketchObject", "Sketch029")
sketch30.AttachmentSupport = (doc.getObject("XY_Plane030"), [""])
sketch30.MapMode = "FlatFace"
sketch30.AttachmentOffset = App.Placement(App.Vector(0, 0, -4), App.Rotation())
add_polygon(sketch30, [(0, 24), (0, 0), (80, 0), (80, 24)])  # lines 0-3
sketch30.addConstraint([
    Sketcher.Constraint("Vertical", 0),
    Sketcher.Constraint("Horizontal", 1),
    Sketcher.Constraint("Vertical", 2),
    Sketcher.Constraint("Horizontal", 3),
    Sketcher.Constraint("Coincident", 0, 2, -1, 1),
    Sketcher.Constraint("DistanceX", 1, 1, 1, 2, 80.0),
    Sketcher.Constraint("DistanceY", 0, 2, 0, 1, 24.0),
])
pad30 = body31.newObject("PartDesign::Pad", "Pad029")
pad30.Profile = sketch30
pad30.Length = 2.5
doc.recompute()

boolean24 = body31.newObject("PartDesign::Boolean", "Boolean023")
boolean24.Type = "Fuse"
boolean24.addObjects([body30])
doc.recompute()

boolean25 = body31.newObject("PartDesign::Boolean", "Boolean024")
boolean25.Type = "Cut"
boolean25.addObjects([body24])

doc.recompute()
